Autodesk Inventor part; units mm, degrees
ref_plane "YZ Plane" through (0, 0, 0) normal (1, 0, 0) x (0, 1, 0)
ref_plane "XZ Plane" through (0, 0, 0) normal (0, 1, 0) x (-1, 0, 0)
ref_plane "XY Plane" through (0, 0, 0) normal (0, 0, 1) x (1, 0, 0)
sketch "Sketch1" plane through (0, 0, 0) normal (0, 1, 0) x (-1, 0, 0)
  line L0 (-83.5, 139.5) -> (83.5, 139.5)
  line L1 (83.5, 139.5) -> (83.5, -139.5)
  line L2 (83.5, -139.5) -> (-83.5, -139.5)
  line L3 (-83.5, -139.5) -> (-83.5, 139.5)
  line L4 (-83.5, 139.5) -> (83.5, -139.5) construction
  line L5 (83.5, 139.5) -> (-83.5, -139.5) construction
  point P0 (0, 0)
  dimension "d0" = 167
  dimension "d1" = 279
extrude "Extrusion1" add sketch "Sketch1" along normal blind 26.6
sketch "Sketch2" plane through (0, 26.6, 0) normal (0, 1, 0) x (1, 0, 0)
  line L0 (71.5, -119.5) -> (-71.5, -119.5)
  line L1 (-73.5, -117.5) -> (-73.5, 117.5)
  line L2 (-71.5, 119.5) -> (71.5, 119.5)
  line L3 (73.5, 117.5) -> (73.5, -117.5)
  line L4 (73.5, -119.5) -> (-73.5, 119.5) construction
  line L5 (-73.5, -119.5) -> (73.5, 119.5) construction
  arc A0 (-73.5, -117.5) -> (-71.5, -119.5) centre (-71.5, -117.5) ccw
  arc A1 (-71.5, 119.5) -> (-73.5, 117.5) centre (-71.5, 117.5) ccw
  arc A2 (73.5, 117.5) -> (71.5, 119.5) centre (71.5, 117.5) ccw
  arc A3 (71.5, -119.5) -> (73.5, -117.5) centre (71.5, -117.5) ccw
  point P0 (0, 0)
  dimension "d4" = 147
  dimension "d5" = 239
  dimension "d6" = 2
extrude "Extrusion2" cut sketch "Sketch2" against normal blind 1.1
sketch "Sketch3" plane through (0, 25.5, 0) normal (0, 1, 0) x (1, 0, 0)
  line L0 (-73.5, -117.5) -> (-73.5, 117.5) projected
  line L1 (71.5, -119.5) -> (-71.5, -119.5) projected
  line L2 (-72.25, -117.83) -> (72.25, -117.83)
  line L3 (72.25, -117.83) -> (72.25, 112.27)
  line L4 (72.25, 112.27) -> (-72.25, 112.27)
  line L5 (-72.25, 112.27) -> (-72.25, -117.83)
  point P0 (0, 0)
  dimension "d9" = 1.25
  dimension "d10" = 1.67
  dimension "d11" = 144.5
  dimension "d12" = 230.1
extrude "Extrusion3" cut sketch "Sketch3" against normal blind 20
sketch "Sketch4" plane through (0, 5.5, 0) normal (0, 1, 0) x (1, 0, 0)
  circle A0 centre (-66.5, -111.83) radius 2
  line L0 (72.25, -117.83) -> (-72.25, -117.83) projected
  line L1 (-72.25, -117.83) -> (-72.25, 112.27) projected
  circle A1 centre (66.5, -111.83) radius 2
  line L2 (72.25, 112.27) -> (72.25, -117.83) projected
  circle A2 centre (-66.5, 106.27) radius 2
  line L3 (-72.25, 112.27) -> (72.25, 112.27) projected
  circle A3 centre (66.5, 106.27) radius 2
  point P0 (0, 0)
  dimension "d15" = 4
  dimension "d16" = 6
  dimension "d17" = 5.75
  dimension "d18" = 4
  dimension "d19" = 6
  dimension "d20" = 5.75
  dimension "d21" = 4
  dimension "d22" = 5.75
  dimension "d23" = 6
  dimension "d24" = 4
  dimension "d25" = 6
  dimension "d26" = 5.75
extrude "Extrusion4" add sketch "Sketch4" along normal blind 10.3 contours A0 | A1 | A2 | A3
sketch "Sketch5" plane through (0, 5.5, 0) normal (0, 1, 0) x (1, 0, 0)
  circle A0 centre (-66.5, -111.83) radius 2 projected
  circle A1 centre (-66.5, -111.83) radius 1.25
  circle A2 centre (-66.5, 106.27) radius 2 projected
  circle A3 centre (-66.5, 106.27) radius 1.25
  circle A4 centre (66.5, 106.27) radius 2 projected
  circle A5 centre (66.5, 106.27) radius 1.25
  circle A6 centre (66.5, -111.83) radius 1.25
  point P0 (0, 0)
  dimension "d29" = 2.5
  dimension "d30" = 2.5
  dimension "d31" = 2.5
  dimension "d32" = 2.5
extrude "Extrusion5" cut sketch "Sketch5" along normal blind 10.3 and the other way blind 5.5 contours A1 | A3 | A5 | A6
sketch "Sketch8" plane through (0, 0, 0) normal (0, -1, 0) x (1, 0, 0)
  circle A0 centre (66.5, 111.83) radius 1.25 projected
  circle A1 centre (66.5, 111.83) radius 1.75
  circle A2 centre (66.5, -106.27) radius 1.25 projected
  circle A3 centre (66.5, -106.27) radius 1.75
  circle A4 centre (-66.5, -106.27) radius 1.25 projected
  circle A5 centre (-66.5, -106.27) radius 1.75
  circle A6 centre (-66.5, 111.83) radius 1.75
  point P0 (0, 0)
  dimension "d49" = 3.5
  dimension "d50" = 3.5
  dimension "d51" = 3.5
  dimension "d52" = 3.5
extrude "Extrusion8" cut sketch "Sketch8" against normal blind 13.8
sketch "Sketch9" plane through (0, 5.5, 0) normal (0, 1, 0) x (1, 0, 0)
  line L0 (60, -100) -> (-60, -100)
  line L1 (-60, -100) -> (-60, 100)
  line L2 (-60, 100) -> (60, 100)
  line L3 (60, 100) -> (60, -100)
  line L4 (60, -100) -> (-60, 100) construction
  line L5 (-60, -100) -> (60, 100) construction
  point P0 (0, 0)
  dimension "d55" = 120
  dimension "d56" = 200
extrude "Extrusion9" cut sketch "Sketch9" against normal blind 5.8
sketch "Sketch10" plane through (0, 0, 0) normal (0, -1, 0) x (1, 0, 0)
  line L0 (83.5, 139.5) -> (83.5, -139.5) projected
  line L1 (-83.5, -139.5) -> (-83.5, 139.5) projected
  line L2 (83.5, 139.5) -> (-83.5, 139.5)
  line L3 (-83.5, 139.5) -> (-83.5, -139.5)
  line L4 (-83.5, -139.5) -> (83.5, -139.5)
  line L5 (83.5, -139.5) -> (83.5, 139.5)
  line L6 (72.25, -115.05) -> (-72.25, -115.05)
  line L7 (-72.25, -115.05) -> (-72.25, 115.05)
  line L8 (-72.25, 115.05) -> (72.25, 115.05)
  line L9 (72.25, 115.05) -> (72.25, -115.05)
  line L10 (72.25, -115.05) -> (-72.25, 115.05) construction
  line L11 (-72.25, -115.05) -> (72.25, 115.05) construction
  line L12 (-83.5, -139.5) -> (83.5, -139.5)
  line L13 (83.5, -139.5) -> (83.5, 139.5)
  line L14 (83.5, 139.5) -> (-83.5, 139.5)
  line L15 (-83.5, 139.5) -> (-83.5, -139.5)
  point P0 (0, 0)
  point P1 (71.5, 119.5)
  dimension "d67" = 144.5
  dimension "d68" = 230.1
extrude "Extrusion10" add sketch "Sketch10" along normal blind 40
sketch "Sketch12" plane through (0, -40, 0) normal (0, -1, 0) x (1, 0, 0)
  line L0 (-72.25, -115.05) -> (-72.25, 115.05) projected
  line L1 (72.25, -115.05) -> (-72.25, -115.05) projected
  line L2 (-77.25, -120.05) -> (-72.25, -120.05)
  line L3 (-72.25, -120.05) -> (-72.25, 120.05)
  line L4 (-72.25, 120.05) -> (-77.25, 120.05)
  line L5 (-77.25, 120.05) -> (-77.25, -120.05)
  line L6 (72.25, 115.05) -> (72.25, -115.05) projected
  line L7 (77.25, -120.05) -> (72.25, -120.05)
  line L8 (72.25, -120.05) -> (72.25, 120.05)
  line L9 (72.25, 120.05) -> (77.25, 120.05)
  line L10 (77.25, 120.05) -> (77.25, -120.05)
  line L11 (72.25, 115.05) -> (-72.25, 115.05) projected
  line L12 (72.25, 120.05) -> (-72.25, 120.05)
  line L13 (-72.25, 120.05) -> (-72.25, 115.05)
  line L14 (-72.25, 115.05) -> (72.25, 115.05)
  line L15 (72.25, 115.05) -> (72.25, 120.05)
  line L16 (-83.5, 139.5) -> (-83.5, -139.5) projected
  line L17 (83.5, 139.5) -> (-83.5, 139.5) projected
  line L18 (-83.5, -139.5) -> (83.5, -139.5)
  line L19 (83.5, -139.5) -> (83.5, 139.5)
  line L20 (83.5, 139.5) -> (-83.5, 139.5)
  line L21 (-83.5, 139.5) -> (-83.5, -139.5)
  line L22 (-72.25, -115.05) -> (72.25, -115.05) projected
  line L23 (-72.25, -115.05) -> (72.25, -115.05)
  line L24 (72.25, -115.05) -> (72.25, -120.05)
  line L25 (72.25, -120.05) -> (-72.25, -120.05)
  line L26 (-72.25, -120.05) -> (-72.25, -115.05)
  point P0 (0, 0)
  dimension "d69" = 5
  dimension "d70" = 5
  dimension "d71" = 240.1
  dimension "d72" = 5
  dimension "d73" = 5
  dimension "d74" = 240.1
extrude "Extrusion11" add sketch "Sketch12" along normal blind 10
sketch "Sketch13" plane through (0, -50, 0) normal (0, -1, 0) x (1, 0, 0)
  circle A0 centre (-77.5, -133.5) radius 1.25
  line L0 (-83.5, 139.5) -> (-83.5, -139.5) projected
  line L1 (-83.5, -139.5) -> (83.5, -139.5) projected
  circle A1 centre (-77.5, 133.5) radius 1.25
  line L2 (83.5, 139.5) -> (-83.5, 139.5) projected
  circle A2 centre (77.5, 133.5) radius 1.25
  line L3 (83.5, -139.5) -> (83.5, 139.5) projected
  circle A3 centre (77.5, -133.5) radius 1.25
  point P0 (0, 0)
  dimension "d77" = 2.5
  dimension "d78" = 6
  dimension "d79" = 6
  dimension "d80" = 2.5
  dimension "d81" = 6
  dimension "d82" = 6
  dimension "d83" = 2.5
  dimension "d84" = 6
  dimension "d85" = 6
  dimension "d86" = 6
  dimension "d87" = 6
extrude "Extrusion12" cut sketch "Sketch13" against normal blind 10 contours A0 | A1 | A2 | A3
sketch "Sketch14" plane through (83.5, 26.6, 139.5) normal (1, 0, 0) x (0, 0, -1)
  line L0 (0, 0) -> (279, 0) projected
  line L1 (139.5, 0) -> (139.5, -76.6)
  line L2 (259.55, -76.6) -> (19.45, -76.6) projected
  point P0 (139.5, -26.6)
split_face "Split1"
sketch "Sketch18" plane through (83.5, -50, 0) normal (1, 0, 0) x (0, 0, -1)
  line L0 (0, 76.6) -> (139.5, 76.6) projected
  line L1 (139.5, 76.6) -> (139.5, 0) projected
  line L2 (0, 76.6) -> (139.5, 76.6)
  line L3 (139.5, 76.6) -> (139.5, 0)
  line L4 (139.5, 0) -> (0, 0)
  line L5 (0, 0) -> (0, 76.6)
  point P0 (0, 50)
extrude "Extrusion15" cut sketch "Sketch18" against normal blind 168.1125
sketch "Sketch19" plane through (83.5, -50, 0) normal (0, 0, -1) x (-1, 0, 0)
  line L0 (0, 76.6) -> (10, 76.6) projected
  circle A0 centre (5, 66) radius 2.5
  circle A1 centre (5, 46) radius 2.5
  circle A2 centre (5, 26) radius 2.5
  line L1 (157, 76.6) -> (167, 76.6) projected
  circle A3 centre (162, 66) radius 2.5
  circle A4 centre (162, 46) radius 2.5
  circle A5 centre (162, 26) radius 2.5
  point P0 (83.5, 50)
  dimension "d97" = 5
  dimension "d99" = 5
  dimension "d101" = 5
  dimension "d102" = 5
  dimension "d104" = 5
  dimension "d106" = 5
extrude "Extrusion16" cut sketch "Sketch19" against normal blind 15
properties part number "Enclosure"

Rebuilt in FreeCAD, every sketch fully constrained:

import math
import FreeCAD as App
import Part
import Sketcher
from FreeCAD import Vector
Q = App.Units.Quantity

doc = App.newDocument("Part")
body = doc.addObject("PartDesign::Body", "Body")

sketch1 = body.newObject("Sketcher::SketchObject", "Sketch")
sketch1.AttachmentSupport = (doc.getObject("XZ_Plane"), [""])
sketch1.MapMode = "FlatFace"
sketch1.addGeometry([
    Part.LineSegment(Vector(-83.5, 139.5, 0), Vector(83.5, 139.5, 0)),
    Part.LineSegment(Vector(83.5, 139.5, 0), Vector(83.5, -139.5, 0)),
    Part.LineSegment(Vector(83.5, -139.5, 0), Vector(-83.5, -139.5, 0)),
    Part.LineSegment(Vector(-83.5, -139.5, 0), Vector(-83.5, 139.5, 0)),
], False)
sketch1.addConstraint([
    Sketcher.Constraint("Coincident", 0, 2, 1, 1),
    Sketcher.Constraint("Coincident", 1, 2, 2, 1),
    Sketcher.Constraint("Coincident", 2, 2, 3, 1),
    Sketcher.Constraint("Coincident", 3, 2, 0, 1),
    Sketcher.Constraint("Horizontal", 0),
    Sketcher.Constraint("Vertical", 1),
    Sketcher.Constraint("Horizontal", 2),
    Sketcher.Constraint("Vertical", 3),
    Sketcher.Constraint("Symmetric", 0, 2, 2, 2, -1, 1),
    Sketcher.Constraint("DistanceX", 0, 1, 0, 2, Q("167 mm")),
    Sketcher.Constraint("DistanceY", 1, 2, 1, 1, Q("279 mm")),
])
pad1 = body.newObject("PartDesign::Pad", "Pad")
pad1.Profile = sketch1
pad1.Length = 26.6
pad1.Reversed = True

sketch2 = body.newObject("Sketcher::SketchObject", "Sketch001")
sketch2.AttachmentSupport = (doc.getObject("XZ_Plane"), [""])
sketch2.MapMode = "FlatFace"
sketch2.AttachmentOffset = App.Placement(Vector(0, 0, -26.6), App.Rotation())
sketch2.addGeometry([
    Part.LineSegment(Vector(-71.5, 119.5, 0), Vector(71.5, 119.5, 0)),
    Part.ArcOfCircle(Part.Circle(Vector(71.5, 117.5, 0), Vector(0, 0, 1), 2), math.radians(0), math.radians(90)),
    Part.LineSegment(Vector(73.5, 117.5, 0), Vector(73.5, -117.5, 0)),
    Part.ArcOfCircle(Part.Circle(Vector(71.5, -117.5, 0), Vector(0, 0, 1), 2), math.radians(-90), math.radians(0)),
    Part.LineSegment(Vector(71.5, -119.5, 0), Vector(-71.5, -119.5, 0)),
    Part.ArcOfCircle(Part.Circle(Vector(-71.5, -117.5, 0), Vector(0, 0, 1), 2), math.radians(180), math.radians(270)),
    Part.LineSegment(Vector(-73.5, -117.5, 0), Vector(-73.5, 117.5, 0)),
    Part.ArcOfCircle(Part.Circle(Vector(-71.5, 117.5, 0), Vector(0, 0, 1), 2), math.radians(90), math.radians(180)),
], False)
sketch2.addConstraint([
    Sketcher.Constraint("Tangent", 0, 2, 1, 2),
    Sketcher.Constraint("Tangent", 1, 1, 2, 1),
    Sketcher.Constraint("Tangent", 2, 2, 3, 2),
    Sketcher.Constraint("Tangent", 3, 1, 4, 1),
    Sketcher.Constraint("Tangent", 4, 2, 5, 2),
    Sketcher.Constraint("Tangent", 5, 1, 6, 1),
    Sketcher.Constraint("Tangent", 6, 2, 7, 2),
    Sketcher.Constraint("Tangent", 7, 1, 0, 1),
    Sketcher.Constraint("Horizontal", 0),
    Sketcher.Constraint("Vertical", 2),
    Sketcher.Constraint("Horizontal", 4),
    Sketcher.Constraint("Vertical", 6),
    Sketcher.Constraint("Equal", 1, 3),
    Sketcher.Constraint("Equal", 3, 5),
    Sketcher.Constraint("Equal", 5, 7),
    Sketcher.Constraint("Symmetric", 1, 3, 5, 3, -1, 1),
    Sketcher.Constraint("Radius", 1, Q("2 mm")),
    Sketcher.Constraint("DistanceX", 5, 1, 2, 2, Q("147 mm")),
    Sketcher.Constraint("DistanceY", 2, 2, 2, 1, Q("235 mm")),
])
pocket1 = body.newObject("PartDesign::Pocket", "Pocket")
pocket1.Profile = sketch2
pocket1.Length = 1.1
pocket1.Reversed = True

sketch3 = body.newObject("Sketcher::SketchObject", "Sketch002")
sketch3.AttachmentSupport = (doc.getObject("XZ_Plane"), [""])
sketch3.MapMode = "FlatFace"
sketch3.AttachmentOffset = App.Placement(Vector(0, 0, -25.5), App.Rotation())
sketch3.addGeometry([
    Part.LineSegment(Vector(-72.25, -112.27, 0), Vector(-72.25, 117.83, 0)),
    Part.LineSegment(Vector(-72.25, 117.83, 0), Vector(72.25, 117.83, 0)),
    Part.LineSegment(Vector(72.25, 117.83, 0), Vector(72.25, -112.27, 0)),
    Part.LineSegment(Vector(72.25, -112.27, 0), Vector(-72.25, -112.27, 0)),
], False)
sketch3.addConstraint([
    Sketcher.Constraint("Coincident", 0, 2, 1, 1),
    Sketcher.Constraint("Coincident", 1, 2, 2, 1),
    Sketcher.Constraint("Coincident", 2, 2, 3, 1),
    Sketcher.Constraint("Coincident", 3, 2, 0, 1),
    Sketcher.Constraint("Vertical", 0),
    Sketcher.Constraint("Horizontal", 1),
    Sketcher.Constraint("Vertical", 2),
    Sketcher.Constraint("Horizontal", 3),
    Sketcher.Constraint("DistanceX", 1, 1, 1, 2, Q("144.5 mm")),
    Sketcher.Constraint("DistanceY", 0, 1, 0, 2, Q("230.1 mm")),
    Sketcher.Constraint("DistanceX", 0, 2, -1, 1, Q("72.25 mm")),
    Sketcher.Constraint("DistanceY", -1, 1, 0, 2, Q("117.83 mm")),
])
pocket2 = body.newObject("PartDesign::Pocket", "Pocket001")
pocket2.Profile = sketch3
pocket2.Length = 20
pocket2.Reversed = True

sketch4 = body.newObject("Sketcher::SketchObject", "Sketch003")
sketch4.AttachmentSupport = (doc.getObject("XZ_Plane"), [""])
sketch4.MapMode = "FlatFace"
sketch4.AttachmentOffset = App.Placement(Vector(0, 0, -5.5), App.Rotation())
sketch4.addGeometry([
    Part.Circle(Vector(-66.5, 111.83, 0), Vector(0, 0, 1), 2),
    Part.Circle(Vector(66.5, 111.83, 0), Vector(0, 0, 1), 2),
    Part.Circle(Vector(-66.5, -106.27, 0), Vector(0, 0, 1), 2),
    Part.Circle(Vector(66.5, -106.27, 0), Vector(0, 0, 1), 2),
], False)
sketch4.addConstraint([
    Sketcher.Constraint("Equal", 0, 1),
    Sketcher.Constraint("Equal", 1, 2),
    Sketcher.Constraint("Equal", 2, 3),
    Sketcher.Constraint("Symmetric", 0, 3, 1, 3, -2),
    Sketcher.Constraint("Symmetric", 2, 3, 3, 3, -2),
    Sketcher.Constraint("Vertical", 0, 3, 2, 3),
    Sketcher.Constraint("Diameter", 0, Q("4 mm")),
    Sketcher.Constraint("DistanceX", 0, 3, 1, 3, Q("133 mm")),
    Sketcher.Constraint("DistanceY", 2, 3, 0, 3, Q("218.1 mm")),
    Sketcher.Constraint("DistanceY", -1, 1, 0, 3, Q("111.83 mm")),
])
pad2 = body.newObject("PartDesign::Pad", "Pad001")
pad2.Profile = sketch4
pad2.Length = 10.3
pad2.Reversed = True

sketch5 = body.newObject("Sketcher::SketchObject", "Sketch004")
sketch5.AttachmentSupport = (doc.getObject("XZ_Plane"), [""])
sketch5.MapMode = "FlatFace"
sketch5.AttachmentOffset = App.Placement(Vector(0, 0, -5.5), App.Rotation())
sketch5.addGeometry([
    Part.Circle(Vector(-66.5, 111.83, 0), Vector(0, 0, 1), 1.25),
    Part.Circle(Vector(-66.5, -106.27, 0), Vector(0, 0, 1), 1.25),
    Part.Circle(Vector(66.5, -106.27, 0), Vector(0, 0, 1), 1.25),
    Part.Circle(Vector(66.5, 111.83, 0), Vector(0, 0, 1), 1.25),
], False)
sketch5.addConstraint([
    Sketcher.Constraint("Equal", 0, 1),
    Sketcher.Constraint("Equal", 1, 2),
    Sketcher.Constraint("Equal", 2, 3),
    Sketcher.Constraint("Symmetric", 1, 3, 2, 3, -2),
    Sketcher.Constraint("Symmetric", 0, 3, 3, 3, -2),
    Sketcher.Constraint("Vertical", 0, 3, 1, 3),
    Sketcher.Constraint("Diameter", 0, Q("2.5 mm")),
    Sketcher.Constraint("DistanceX", 1, 3, 2, 3, Q("133 mm")),
    Sketcher.Constraint("DistanceY", 1, 3, 0, 3, Q("218.1 mm")),
    Sketcher.Constraint("DistanceY", -1, 1, 0, 3, Q("111.83 mm")),
])
pocket3 = body.newObject("PartDesign::Pocket", "Pocket002")
pocket3.Profile = sketch5
pocket3.Type = "ThroughAll"
pocket3.Midplane = True

sketch6 = body.newObject("Sketcher::SketchObject", "Sketch005")
sketch6.AttachmentSupport = (doc.getObject("XZ_Plane"), [""])
sketch6.MapMode = "FlatFace"
sketch6.addGeometry([
    Part.Circle(Vector(66.5, 111.83, 0), Vector(0, 0, 1), 1.75),
    Part.Circle(Vector(66.5, 111.83, 0), Vector(0, 0, 1), 1.25),
    Part.Circle(Vector(66.5, -106.27, 0), Vector(0, 0, 1), 1.75),
    Part.Circle(Vector(66.5, -106.27, 0), Vector(0, 0, 1), 1.25),
    Part.Circle(Vector(-66.5, -106.27, 0), Vector(0, 0, 1), 1.75),
    Part.Circle(Vector(-66.5, -106.27, 0), Vector(0, 0, 1), 1.25),
    Part.Circle(Vector(-66.5, 111.83, 0), Vector(0, 0, 1), 1.75),
], False)
sketch6.addConstraint([
    Sketcher.Constraint("Coincident", 1, 3, 0, 3),
    Sketcher.Constraint("Coincident", 3, 3, 2, 3),
    Sketcher.Constraint("Coincident", 5, 3, 4, 3),
    Sketcher.Constraint("Equal", 0, 2),
    Sketcher.Constraint("Equal", 1, 3),
    Sketcher.Constraint("Equal", 2, 4),
    Sketcher.Constraint("Equal", 3, 5),
    Sketcher.Constraint("Equal", 4, 6),
    Sketcher.Constraint("Symmetric", 2, 3, 4, 3, -2),
    Sketcher.Constraint("Symmetric", 0, 3, 6, 3, -2),
    Sketcher.Constraint("Vertical", 1, 3, 2, 3),
    Sketcher.Constraint("Diameter", 0, Q("3.5 mm")),
    Sketcher.Constraint("Diameter", 1, Q("2.5 mm")),
    Sketcher.Constraint("DistanceX", 4, 3, 2, 3, Q("133 mm")),
    Sketcher.Constraint("DistanceY", 2, 3, 0, 3, Q("218.1 mm")),
    Sketcher.Constraint("DistanceY", -1, 1, 0, 3, Q("111.83 mm")),
])
pocket4 = body.newObject("PartDesign::Pocket", "Pocket003")
pocket4.Profile = sketch6
pocket4.Length = 13.8

sketch7 = body.newObject("Sketcher::SketchObject", "Sketch006")
sketch7.AttachmentSupport = (doc.getObject("XZ_Plane"), [""])
sketch7.MapMode = "FlatFace"
sketch7.AttachmentOffset = App.Placement(Vector(0, 0, -5.5), App.Rotation())
sketch7.addGeometry([
    Part.LineSegment(Vector(-60, 100, 0), Vector(60, 100, 0)),
    Part.LineSegment(Vector(60, 100, 0), Vector(60, -100, 0)),
    Part.LineSegment(Vector(60, -100, 0), Vector(-60, -100, 0)),
    Part.LineSegment(Vector(-60, -100, 0), Vector(-60, 100, 0)),
], False)
sketch7.addConstraint([
    Sketcher.Constraint("Coincident", 0, 2, 1, 1),
    Sketcher.Constraint("Coincident", 1, 2, 2, 1),
    Sketcher.Constraint("Coincident", 2, 2, 3, 1),
    Sketcher.Constraint("Coincident", 3, 2, 0, 1),
    Sketcher.Constraint("Horizontal", 0),
    Sketcher.Constraint("Vertical", 1),
    Sketcher.Constraint("Horizontal", 2),
    Sketcher.Constraint("Vertical", 3),
    Sketcher.Constraint("Symmetric", 0, 2, 2, 2, -1, 1),
    Sketcher.Constraint("DistanceX", 0, 1, 0, 2, Q("120 mm")),
    Sketcher.Constraint("DistanceY", 1, 2, 1, 1, Q("200 mm")),
])
pocket5 = body.newObject("PartDesign::Pocket", "Pocket004")
pocket5.Profile = sketch7
pocket5.Length = 5.8
pocket5.Reversed = True

sketch8 = body.newObject("Sketcher::SketchObject", "Sketch007")
sketch8.AttachmentSupport = (doc.getObject("XZ_Plane"), [""])
sketch8.MapMode = "FlatFace"
sketch8.addGeometry([
    Part.LineSegment(Vector(83.5, -139.5, 0), Vector(83.5, 139.5, 0)),
    Part.LineSegment(Vector(83.5, 139.5, 0), Vector(-83.5, 139.5, 0)),
    Part.LineSegment(Vector(-83.5, 139.5, 0), Vector(-83.5, -139.5, 0)),
    Part.LineSegment(Vector(-83.5, -139.5, 0), Vector(83.5, -139.5, 0)),
    Part.LineSegment(Vector(72.25, 115.05, 0), Vector(72.25, -115.05, 0)),
    Part.LineSegment(Vector(72.25, -115.05, 0), Vector(-72.25, -115.05, 0)),
    Part.LineSegment(Vector(-72.25, -115.05, 0), Vector(-72.25, 115.05, 0)),
    Part.LineSegment(Vector(-72.25, 115.05, 0), Vector(72.25, 115.05, 0)),
], False)
sketch8.addConstraint([
    Sketcher.Constraint("Coincident", 0, 2, 1, 1),
    Sketcher.Constraint("Coincident", 1, 2, 2, 1),
    Sketcher.Constraint("Coincident", 2, 2, 3, 1),
    Sketcher.Constraint("Coincident", 3, 2, 0, 1),
    Sketcher.Constraint("Coincident", 4, 2, 5, 1),
    Sketcher.Constraint("Coincident", 5, 2, 6, 1),
    Sketcher.Constraint("Coincident", 6, 2, 7, 1),
    Sketcher.Constraint("Coincident", 7, 2, 4, 1),
    Sketcher.Constraint("Vertical", 0),
    Sketcher.Constraint("Horizontal", 1),
    Sketcher.Constraint("Vertical", 2),
    Sketcher.Constraint("Horizontal", 3),
    Sketcher.Constraint("Vertical", 4),
    Sketcher.Constraint("Horizontal", 5),
    Sketcher.Constraint("Vertical", 6),
    Sketcher.Constraint("Horizontal", 7),
    Sketcher.Constraint("Symmetric", 0, 2, 2, 2, -1, 1),
    Sketcher.Constraint("Symmetric", 4, 2, 6, 2, -1, 1),
    Sketcher.Constraint("DistanceX", 5, 2, 5, 1, Q("144.5 mm")),
    Sketcher.Constraint("DistanceY", 4, 2, 4, 1, Q("230.1 mm")),
    Sketcher.Constraint("DistanceX", 1, 2, 1, 1, Q("167 mm")),
    Sketcher.Constraint("DistanceY", 0, 1, 0, 2, Q("279 mm")),
])
pad3 = body.newObject("PartDesign::Pad", "Pad002")
pad3.Profile = sketch8
pad3.Length = 40

sketch9 = body.newObject("Sketcher::SketchObject", "Sketch008")
sketch9.AttachmentSupport = (doc.getObject("XZ_Plane"), [""])
sketch9.MapMode = "FlatFace"
sketch9.AttachmentOffset = App.Placement(Vector(0, 0, 40), App.Rotation())
sketch9.addGeometry([
    Part.LineSegment(Vector(83.5, 139.5, 0), Vector(-83.5, 139.5, 0)),
    Part.LineSegment(Vector(-83.5, 139.5, 0), Vector(-83.5, -139.5, 0)),
    Part.LineSegment(Vector(-83.5, -139.5, 0), Vector(83.5, -139.5, 0)),
    Part.LineSegment(Vector(83.5, -139.5, 0), Vector(83.5, 139.5, 0)),
    Part.LineSegment(Vector(77.25, -120.05, 0), Vector(-77.25, -120.05, 0)),
    Part.LineSegment(Vector(-77.25, -120.05, 0), Vector(-77.25, 120.05, 0)),
    Part.LineSegment(Vector(-77.25, 120.05, 0), Vector(77.25, 120.05, 0)),
    Part.LineSegment(Vector(77.25, 120.05, 0), Vector(77.25, -120.05, 0)),
], False)
sketch9.addConstraint([
    Sketcher.Constraint("Coincident", 0, 2, 1, 1),
    Sketcher.Constraint("Coincident", 1, 2, 2, 1),
    Sketcher.Constraint("Coincident", 2, 2, 3, 1),
    Sketcher.Constraint("Coincident", 3, 2, 0, 1),
    Sketcher.Constraint("Coincident", 4, 2, 5, 1),
    Sketcher.Constraint("Coincident", 5, 2, 6, 1),
    Sketcher.Constraint("Coincident", 6, 2, 7, 1),
    Sketcher.Constraint("Coincident", 7, 2, 4, 1),
    Sketcher.Constraint("Horizontal", 0),
    Sketcher.Constraint("Vertical", 1),
    Sketcher.Constraint("Horizontal", 2),
    Sketcher.Constraint("Vertical", 3),
    Sketcher.Constraint("Horizontal", 4),
    Sketcher.Constraint("Vertical", 5),
    Sketcher.Constraint("Horizontal", 6),
    Sketcher.Constraint("Vertical", 7),
    Sketcher.Constraint("Symmetric", 0, 2, 2, 2, -1, 1),
    Sketcher.Constraint("Symmetric", 4, 2, 6, 2, -1, 1),
    Sketcher.Constraint("DistanceY", 5, 1, 5, 2, Q("240.1 mm")),
    Sketcher.Constraint("DistanceX", 0, 2, 0, 1, Q("167 mm")),
    Sketcher.Constraint("DistanceY", 1, 2, 1, 1, Q("279 mm")),
    Sketcher.Constraint("DistanceX", 4, 2, 4, 1, Q("154.5 mm")),
])
pad4 = body.newObject("PartDesign::Pad", "Pad003")
pad4.Profile = sketch9
pad4.Length = 10

sketch10 = body.newObject("Sketcher::SketchObject", "Sketch009")
sketch10.AttachmentSupport = (doc.getObject("XZ_Plane"), [""])
sketch10.MapMode = "FlatFace"
sketch10.AttachmentOffset = App.Placement(Vector(0, 0, 50), App.Rotation())
sketch10.addGeometry([
    Part.Circle(Vector(-77.5, -133.5, 0), Vector(0, 0, 1), 1.25),
    Part.Circle(Vector(-77.5, 133.5, 0), Vector(0, 0, 1), 1.25),
    Part.Circle(Vector(77.5, 133.5, 0), Vector(0, 0, 1), 1.25),
    Part.Circle(Vector(77.5, -133.5, 0), Vector(0, 0, 1), 1.25),
], False)
sketch10.addConstraint([
    Sketcher.Constraint("Equal", 0, 1),
    Sketcher.Constraint("Equal", 1, 2),
    Sketcher.Constraint("Equal", 2, 3),
    Sketcher.Constraint("Symmetric", 0, 3, 2, 3, -1, 1),
    Sketcher.Constraint("Symmetric", 1, 3, 3, 3, -1, 1),
    Sketcher.Constraint("Symmetric", 1, 3, 2, 3, -2),
    Sketcher.Constraint("Diameter", 0, Q("2.5 mm")),
    Sketcher.Constraint("DistanceY", 0, 3, 1, 3, Q("267 mm")),
    Sketcher.Constraint("DistanceX", 1, 3, 2, 3, Q("155 mm")),
])
pocket6 = body.newObject("PartDesign::Pocket", "Pocket005")
pocket6.Profile = sketch10
pocket6.Length = 10

sketch11 = body.newObject("Sketcher::SketchObject", "Sketch010")
sketch11.AttachmentSupport = (doc.getObject("YZ_Plane"), [""])
sketch11.MapMode = "FlatFace"
sketch11.AttachmentOffset = App.Placement(Vector(0, 0, 83.5), App.Rotation())
sketch11.addGeometry([
    Part.LineSegment(Vector(26.6, -139.5, 0), Vector(26.6, 0, 0)),
    Part.LineSegment(Vector(26.6, 0, 0), Vector(-50, 0, 0)),
    Part.LineSegment(Vector(-50, 0, 0), Vector(-50, -139.5, 0)),
    Part.LineSegment(Vector(-50, -139.5, 0), Vector(26.6, -139.5, 0)),
], False)
sketch11.addConstraint([
    Sketcher.Constraint("Coincident", 0, 2, 1, 1),
    Sketcher.Constraint("Coincident", 1, 2, 2, 1),
    Sketcher.Constraint("Coincident", 2, 2, 3, 1),
    Sketcher.Constraint("Coincident", 3, 2, 0, 1),
    Sketcher.Constraint("Vertical", 0),
    Sketcher.Constraint("Horizontal", 1),
    Sketcher.Constraint("Vertical", 2),
    Sketcher.Constraint("Horizontal", 3),
    Sketcher.Constraint("PointOnObject", 0, 2, -1),
    Sketcher.Constraint("DistanceX", 1, 2, 1, 1, Q("76.6 mm")),
    Sketcher.Constraint("DistanceY", 0, 1, 0, 2, Q("139.5 mm")),
    Sketcher.Constraint("DistanceX", 1, 2, -1, 1, Q("50 mm")),
])
pocket7 = body.newObject("PartDesign::Pocket", "Pocket006")
pocket7.Profile = sketch11
pocket7.Length = 168.1125

sketch12 = body.newObject("Sketcher::SketchObject", "Sketch011")
sketch12.AttachmentSupport = (doc.getObject("XY_Plane"), [""])
sketch12.MapMode = "FlatFace"
sketch12.addGeometry([
    Part.Circle(Vector(78.5, 16, 0), Vector(0, 0, 1), 2.5),
    Part.Circle(Vector(78.5, -4, 0), Vector(0, 0, 1), 2.5),
    Part.Circle(Vector(78.5, -24, 0), Vector(0, 0, 1), 2.5),
    Part.Circle(Vector(-78.5, 16, 0), Vector(0, 0, 1), 2.5),
    Part.Circle(Vector(-78.5, -4, 0), Vector(0, 0, 1), 2.5),
    Part.Circle(Vector(-78.5, -24, 0), Vector(0, 0, 1), 2.5),
], False)
sketch12.addConstraint([
    Sketcher.Constraint("Equal", 0, 1),
    Sketcher.Constraint("Equal", 1, 2),
    Sketcher.Constraint("Equal", 2, 3),
    Sketcher.Constraint("Equal", 3, 4),
    Sketcher.Constraint("Equal", 4, 5),
    Sketcher.Constraint("Symmetric", 0, 3, 3, 3, -2),
    Sketcher.Constraint("Symmetric", 1, 3, 4, 3, -2),
    Sketcher.Constraint("Symmetric", 2, 3, 5, 3, -2),
    Sketcher.Constraint("Vertical", 0, 3, 1, 3),
    Sketcher.Constraint("Vertical", 1, 3, 2, 3),
    Sketcher.Constraint("Diameter", 0, Q("5 mm")),
    Sketcher.Constraint("DistanceY", -1, 1, 0, 3, Q("16 mm")),
    Sketcher.Constraint("DistanceY", 1, 3, -1, 1, Q("4 mm")),
    Sketcher.Constraint("DistanceY", 2, 3, -1, 1, Q("24 mm")),
    Sketcher.Constraint("DistanceX", 3, 3, 0, 3, Q("157 mm")),
])
pocket8 = body.newObject("PartDesign::Pocket", "Pocket007")
pocket8.Profile = sketch12
pocket8.Length = 15
pocket8.Reversed = True

doc.recompute()
